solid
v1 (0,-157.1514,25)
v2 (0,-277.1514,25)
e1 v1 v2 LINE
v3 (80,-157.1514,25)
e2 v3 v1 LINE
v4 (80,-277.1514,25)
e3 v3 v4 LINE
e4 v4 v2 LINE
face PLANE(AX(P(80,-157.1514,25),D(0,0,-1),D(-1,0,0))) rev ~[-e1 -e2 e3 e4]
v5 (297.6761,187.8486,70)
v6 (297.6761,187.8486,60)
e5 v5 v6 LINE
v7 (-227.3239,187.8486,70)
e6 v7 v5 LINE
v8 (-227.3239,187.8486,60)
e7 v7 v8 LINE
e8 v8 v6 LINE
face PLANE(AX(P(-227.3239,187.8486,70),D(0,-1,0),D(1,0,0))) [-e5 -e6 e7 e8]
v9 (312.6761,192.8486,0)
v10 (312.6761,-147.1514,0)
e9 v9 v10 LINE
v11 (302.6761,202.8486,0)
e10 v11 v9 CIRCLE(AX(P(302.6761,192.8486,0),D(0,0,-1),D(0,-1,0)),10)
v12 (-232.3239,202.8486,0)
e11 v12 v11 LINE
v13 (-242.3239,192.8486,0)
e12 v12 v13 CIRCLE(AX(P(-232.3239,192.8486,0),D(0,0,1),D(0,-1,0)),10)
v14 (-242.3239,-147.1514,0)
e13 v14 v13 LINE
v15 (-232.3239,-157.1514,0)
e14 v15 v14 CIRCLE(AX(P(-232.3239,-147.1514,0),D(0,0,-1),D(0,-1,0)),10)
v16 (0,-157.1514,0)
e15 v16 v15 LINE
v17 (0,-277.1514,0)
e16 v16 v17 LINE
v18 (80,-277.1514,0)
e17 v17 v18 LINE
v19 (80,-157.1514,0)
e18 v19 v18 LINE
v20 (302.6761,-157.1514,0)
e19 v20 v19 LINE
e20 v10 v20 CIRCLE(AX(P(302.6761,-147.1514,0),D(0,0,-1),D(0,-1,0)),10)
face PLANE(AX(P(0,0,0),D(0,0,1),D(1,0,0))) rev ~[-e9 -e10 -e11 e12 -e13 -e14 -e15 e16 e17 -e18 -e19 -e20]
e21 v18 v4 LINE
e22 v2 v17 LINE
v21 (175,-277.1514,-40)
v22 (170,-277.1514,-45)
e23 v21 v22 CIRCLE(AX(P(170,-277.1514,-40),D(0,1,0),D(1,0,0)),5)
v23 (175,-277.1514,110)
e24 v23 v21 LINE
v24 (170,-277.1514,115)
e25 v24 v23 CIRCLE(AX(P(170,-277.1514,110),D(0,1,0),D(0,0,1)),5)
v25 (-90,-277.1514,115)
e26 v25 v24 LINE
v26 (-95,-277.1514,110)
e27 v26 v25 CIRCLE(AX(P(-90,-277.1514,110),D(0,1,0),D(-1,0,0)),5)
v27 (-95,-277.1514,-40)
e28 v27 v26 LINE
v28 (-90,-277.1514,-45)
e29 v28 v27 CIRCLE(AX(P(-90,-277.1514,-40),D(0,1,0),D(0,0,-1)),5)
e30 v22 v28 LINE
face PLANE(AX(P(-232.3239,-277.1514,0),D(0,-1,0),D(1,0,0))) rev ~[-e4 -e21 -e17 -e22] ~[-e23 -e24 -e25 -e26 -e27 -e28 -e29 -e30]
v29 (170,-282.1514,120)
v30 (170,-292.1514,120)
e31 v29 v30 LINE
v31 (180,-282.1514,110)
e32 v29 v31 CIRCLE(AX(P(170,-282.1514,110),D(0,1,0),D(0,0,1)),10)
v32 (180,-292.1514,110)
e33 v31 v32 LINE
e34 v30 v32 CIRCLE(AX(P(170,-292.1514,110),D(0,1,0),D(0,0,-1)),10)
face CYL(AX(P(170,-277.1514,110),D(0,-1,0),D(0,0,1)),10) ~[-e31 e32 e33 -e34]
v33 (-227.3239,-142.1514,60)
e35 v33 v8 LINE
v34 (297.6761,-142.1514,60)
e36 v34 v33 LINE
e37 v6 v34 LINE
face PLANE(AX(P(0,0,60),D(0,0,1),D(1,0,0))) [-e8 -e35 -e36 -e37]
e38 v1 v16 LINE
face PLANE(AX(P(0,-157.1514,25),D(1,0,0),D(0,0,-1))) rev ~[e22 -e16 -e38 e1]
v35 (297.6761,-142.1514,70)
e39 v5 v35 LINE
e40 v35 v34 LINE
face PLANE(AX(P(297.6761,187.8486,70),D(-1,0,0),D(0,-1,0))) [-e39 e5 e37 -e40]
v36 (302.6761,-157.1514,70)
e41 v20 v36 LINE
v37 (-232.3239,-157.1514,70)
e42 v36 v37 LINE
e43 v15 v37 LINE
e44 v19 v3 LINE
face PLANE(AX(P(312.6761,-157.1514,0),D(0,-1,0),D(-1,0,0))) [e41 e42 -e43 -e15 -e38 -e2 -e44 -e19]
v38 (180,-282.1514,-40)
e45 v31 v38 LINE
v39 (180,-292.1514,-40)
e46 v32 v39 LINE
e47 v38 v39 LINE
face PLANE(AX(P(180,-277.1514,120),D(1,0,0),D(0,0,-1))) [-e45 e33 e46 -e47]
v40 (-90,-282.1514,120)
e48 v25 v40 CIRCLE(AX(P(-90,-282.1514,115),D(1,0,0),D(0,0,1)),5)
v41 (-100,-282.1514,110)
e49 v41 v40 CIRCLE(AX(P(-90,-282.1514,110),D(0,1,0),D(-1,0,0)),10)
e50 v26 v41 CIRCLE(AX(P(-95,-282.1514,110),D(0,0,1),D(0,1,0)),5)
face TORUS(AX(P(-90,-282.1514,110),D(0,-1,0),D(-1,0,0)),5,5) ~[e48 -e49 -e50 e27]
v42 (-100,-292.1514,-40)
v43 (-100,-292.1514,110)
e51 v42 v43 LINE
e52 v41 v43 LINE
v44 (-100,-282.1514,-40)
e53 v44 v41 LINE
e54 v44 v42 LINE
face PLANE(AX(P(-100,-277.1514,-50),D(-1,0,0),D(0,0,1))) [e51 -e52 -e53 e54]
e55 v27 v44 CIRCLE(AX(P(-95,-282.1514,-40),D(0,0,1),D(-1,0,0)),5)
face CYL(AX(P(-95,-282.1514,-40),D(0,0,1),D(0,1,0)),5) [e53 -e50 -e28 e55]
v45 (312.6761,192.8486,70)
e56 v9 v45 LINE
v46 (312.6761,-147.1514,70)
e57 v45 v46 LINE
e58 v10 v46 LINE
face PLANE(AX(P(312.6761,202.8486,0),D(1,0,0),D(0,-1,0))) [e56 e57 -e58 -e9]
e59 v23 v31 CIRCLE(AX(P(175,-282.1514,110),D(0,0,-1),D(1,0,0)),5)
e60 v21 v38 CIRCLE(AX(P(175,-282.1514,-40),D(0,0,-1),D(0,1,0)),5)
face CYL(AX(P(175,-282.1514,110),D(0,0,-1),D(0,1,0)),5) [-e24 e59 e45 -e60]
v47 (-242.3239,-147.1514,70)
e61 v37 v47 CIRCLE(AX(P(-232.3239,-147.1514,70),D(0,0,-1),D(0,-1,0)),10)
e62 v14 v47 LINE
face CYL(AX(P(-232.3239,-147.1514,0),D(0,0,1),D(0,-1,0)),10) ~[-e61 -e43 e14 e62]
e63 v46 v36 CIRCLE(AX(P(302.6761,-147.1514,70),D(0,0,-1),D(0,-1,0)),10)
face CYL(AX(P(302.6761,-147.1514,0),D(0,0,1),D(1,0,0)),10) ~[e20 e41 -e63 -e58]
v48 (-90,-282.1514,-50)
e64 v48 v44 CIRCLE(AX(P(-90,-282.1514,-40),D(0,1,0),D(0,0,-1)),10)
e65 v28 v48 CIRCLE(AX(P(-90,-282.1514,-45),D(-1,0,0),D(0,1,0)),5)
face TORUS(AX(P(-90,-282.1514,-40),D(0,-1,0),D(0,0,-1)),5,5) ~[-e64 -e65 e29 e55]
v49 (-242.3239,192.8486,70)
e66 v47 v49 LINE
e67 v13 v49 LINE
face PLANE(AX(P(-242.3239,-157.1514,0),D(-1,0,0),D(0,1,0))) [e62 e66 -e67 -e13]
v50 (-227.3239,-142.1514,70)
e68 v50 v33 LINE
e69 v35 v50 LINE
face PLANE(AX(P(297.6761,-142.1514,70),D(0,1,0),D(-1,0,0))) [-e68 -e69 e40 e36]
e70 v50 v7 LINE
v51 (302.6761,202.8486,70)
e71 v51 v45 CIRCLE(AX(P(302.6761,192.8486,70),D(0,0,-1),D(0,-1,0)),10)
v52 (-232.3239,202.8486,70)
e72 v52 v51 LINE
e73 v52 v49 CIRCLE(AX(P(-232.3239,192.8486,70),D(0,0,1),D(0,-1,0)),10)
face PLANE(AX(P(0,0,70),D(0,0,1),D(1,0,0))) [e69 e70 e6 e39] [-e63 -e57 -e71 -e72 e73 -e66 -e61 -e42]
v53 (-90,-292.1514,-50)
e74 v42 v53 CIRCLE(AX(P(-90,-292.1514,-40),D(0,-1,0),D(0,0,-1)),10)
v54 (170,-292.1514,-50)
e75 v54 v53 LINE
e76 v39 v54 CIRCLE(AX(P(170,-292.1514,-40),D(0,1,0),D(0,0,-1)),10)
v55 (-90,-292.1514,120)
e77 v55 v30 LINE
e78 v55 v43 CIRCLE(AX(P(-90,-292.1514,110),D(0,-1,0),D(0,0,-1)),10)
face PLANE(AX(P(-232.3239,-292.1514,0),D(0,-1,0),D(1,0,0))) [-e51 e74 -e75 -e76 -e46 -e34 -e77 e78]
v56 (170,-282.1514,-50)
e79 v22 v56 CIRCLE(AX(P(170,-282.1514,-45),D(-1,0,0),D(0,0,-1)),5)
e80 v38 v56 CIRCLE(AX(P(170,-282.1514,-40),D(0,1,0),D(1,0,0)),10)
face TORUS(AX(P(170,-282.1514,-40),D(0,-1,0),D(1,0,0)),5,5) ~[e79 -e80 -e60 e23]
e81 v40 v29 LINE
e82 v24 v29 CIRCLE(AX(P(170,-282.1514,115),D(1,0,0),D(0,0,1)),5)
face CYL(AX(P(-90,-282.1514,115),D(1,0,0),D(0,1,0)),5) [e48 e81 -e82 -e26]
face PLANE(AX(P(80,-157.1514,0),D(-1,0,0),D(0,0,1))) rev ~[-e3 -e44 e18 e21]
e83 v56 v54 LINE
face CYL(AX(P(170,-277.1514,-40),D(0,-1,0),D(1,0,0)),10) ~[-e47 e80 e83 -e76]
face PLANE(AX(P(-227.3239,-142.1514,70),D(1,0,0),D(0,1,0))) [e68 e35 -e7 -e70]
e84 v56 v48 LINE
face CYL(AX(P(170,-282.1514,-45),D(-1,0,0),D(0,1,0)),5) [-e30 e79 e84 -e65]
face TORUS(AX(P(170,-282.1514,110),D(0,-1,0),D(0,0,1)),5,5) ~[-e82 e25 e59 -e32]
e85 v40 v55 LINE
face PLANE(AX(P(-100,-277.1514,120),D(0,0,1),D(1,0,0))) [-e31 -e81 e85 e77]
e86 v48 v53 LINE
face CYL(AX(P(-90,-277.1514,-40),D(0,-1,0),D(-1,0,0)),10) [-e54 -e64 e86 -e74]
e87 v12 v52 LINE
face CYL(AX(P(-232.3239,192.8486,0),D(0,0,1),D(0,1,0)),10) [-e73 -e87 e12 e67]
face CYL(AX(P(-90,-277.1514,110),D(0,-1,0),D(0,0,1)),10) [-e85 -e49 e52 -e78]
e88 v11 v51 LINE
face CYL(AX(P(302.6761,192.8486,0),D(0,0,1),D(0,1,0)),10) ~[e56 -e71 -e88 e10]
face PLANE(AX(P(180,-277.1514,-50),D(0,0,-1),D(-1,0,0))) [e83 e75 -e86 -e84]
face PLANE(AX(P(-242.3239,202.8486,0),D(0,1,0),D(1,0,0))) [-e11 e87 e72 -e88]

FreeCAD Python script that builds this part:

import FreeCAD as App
import Part
import Sketcher
from FreeCAD import Vector


def edges_at(feature, points):
    """Names of the edges that pass closest to the given points."""
    edges = feature.Shape.Edges
    near = lambda p: min(range(len(edges)), key=lambda i: edges[i].distToShape(Part.Vertex(*p))[0])
    return sorted({f"Edge{near(p) + 1}" for p in points})

doc = App.newDocument("Part")
body = doc.addObject("PartDesign::Body", "Body")

sketch1 = body.newObject("Sketcher::SketchObject", "Sketch")
sketch1.AttachmentSupport = (doc.getObject("XY_Plane"), [""])
sketch1.MapMode = "FlatFace"
sketch1.addGeometry([
    Part.LineSegment(Vector(313, 203, 0), Vector(-242, 203, 0)),
    Part.LineSegment(Vector(-242, 203, 0), Vector(-242, -157, 0)),
    Part.LineSegment(Vector(-242, -157, 0), Vector(313, -157, 0)),
    Part.LineSegment(Vector(313, -157, 0), Vector(313, 203, 0)),
], False)
sketch1.addConstraint([
    Sketcher.Constraint("Coincident", 0, 2, 1, 1),
    Sketcher.Constraint("Coincident", 1, 2, 2, 1),
    Sketcher.Constraint("Coincident", 2, 2, 3, 1),
    Sketcher.Constraint("Coincident", 3, 2, 0, 1),
    Sketcher.Constraint("Horizontal", 0),
    Sketcher.Constraint("Vertical", 1),
    Sketcher.Constraint("Horizontal", 2),
    Sketcher.Constraint("Vertical", 3),
    Sketcher.Constraint("DistanceX", 0, 2, 0, 1, 555.0),
    Sketcher.Constraint("DistanceY", 1, 2, 1, 1, 360.0),
    Sketcher.Constraint("DistanceX", 0, 2, -1, 1, 242.324),
    Sketcher.Constraint("DistanceY", -1, 1, 0, 2, 202.8486),
])
pad1 = body.newObject("PartDesign::Pad", "Pad")
pad1.Profile = sketch1
pad1.Length = 70
doc.recompute()

fillet = body.newObject("PartDesign::Fillet", "Fillet")
fillet.Base = (pad1, edges_at(pad1, [
    (-242.324, 202.849, 35),
    (-242.324, -157.151, 35),
    (312.676, -157.151, 35),
    (312.676, 202.849, 35),
]))
fillet.Radius = 10

sketch2 = body.newObject("Sketcher::SketchObject", "Sketch001")
sketch2.AttachmentSupport = (doc.getObject("XY_Plane"), [""])
sketch2.MapMode = "FlatFace"
sketch2.AttachmentOffset = App.Placement(Vector(0, 0, 70), App.Rotation())
sketch2.addGeometry([
    Part.LineSegment(Vector(298, 188, 0), Vector(-227, 188, 0)),
    Part.LineSegment(Vector(-227, 188, 0), Vector(-227, -142, 0)),
    Part.LineSegment(Vector(-227, -142, 0), Vector(298, -142, 0)),
    Part.LineSegment(Vector(298, -142, 0), Vector(298, 188, 0)),
], False)
sketch2.addConstraint([
    Sketcher.Constraint("Coincident", 0, 2, 1, 1),
    Sketcher.Constraint("Coincident", 1, 2, 2, 1),
    Sketcher.Constraint("Coincident", 2, 2, 3, 1),
    Sketcher.Constraint("Coincident", 3, 2, 0, 1),
    Sketcher.Constraint("Horizontal", 0),
    Sketcher.Constraint("Vertical", 1),
    Sketcher.Constraint("Horizontal", 2),
    Sketcher.Constraint("Vertical", 3),
    Sketcher.Constraint("DistanceX", 0, 2, 0, 1, 525.0),
    Sketcher.Constraint("DistanceY", 1, 2, 1, 1, 330.0),
    Sketcher.Constraint("DistanceX", 0, 2, -1, 1, 227.324),
    Sketcher.Constraint("DistanceY", -1, 1, 0, 2, 187.8486),
])
pocket1 = body.newObject("PartDesign::Pocket", "Pocket")
pocket1.Profile = sketch2
pocket1.Length = 10

sketch3 = body.newObject("Sketcher::SketchObject", "Sketch002")
sketch3.AttachmentSupport = (doc.getObject("XZ_Plane"), [""])
sketch3.MapMode = "FlatFace"
sketch3.AttachmentOffset = App.Placement(Vector(0, 0, 157.1514), App.Rotation())
sketch3.addGeometry([
    Part.LineSegment(Vector(0, 25, 0), Vector(0, 0, 0)),
    Part.LineSegment(Vector(0, 0, 0), Vector(80, 0, 0)),
    Part.LineSegment(Vector(80, 0, 0), Vector(80, 25, 0)),
    Part.LineSegment(Vector(80, 25, 0), Vector(0, 25, 0)),
], False)
sketch3.addConstraint([
    Sketcher.Constraint("Coincident", 0, 2, 1, 1),
    Sketcher.Constraint("Coincident", 1, 2, 2, 1),
    Sketcher.Constraint("Coincident", 2, 2, 3, 1),
    Sketcher.Constraint("Coincident", 3, 2, 0, 1),
    Sketcher.Constraint("Vertical", 0),
    Sketcher.Constraint("Horizontal", 1),
    Sketcher.Constraint("Vertical", 2),
    Sketcher.Constraint("Horizontal", 3),
    Sketcher.Constraint("Coincident", 0, 2, -1, 1),
    Sketcher.Constraint("DistanceX", 1, 1, 1, 2, 80.0),
    Sketcher.Constraint("DistanceY", 0, 2, 0, 1, 25.0),
])
pad2 = body.newObject("PartDesign::Pad", "Pad001")
pad2.Profile = sketch3
pad2.Length = 120

sketch4 = body.newObject("Sketcher::SketchObject", "Sketch003")
sketch4.AttachmentSupport = (doc.getObject("XZ_Plane"), [""])
sketch4.MapMode = "FlatFace"
sketch4.AttachmentOffset = App.Placement(Vector(0, 0, 277.1514), App.Rotation())
sketch4.addGeometry([
    Part.LineSegment(Vector(180, 120, 0), Vector(-100, 120, 0)),
    Part.LineSegment(Vector(-100, 120, 0), Vector(-100, -50, 0)),
    Part.LineSegment(Vector(-100, -50, 0), Vector(180, -50, 0)),
    Part.LineSegment(Vector(180, -50, 0), Vector(180, 120, 0)),
], False)
sketch4.addConstraint([
    Sketcher.Constraint("Coincident", 0, 2, 1, 1),
    Sketcher.Constraint("Coincident", 1, 2, 2, 1),
    Sketcher.Constraint("Coincident", 2, 2, 3, 1),
    Sketcher.Constraint("Coincident", 3, 2, 0, 1),
    Sketcher.Constraint("Horizontal", 0),
    Sketcher.Constraint("Vertical", 1),
    Sketcher.Constraint("Horizontal", 2),
    Sketcher.Constraint("Vertical", 3),
    Sketcher.Constraint("DistanceX", 0, 2, 0, 1, 280.0),
    Sketcher.Constraint("DistanceY", 1, 2, 1, 1, 170.0),
    Sketcher.Constraint("DistanceX", 0, 2, -1, 1, 100.0),
    Sketcher.Constraint("DistanceY", 1, 2, -1, 1, 50.0),
])
pad3 = body.newObject("PartDesign::Pad", "Pad002")
pad3.Profile = sketch4
pad3.Length = 15
doc.recompute()

fillet2 = body.newObject("PartDesign::Fillet", "Fillet001")
fillet2.Base = (pad3, edges_at(pad3, [
    (180, -284.651, 120),
    (-100, -284.651, 120),
    (180, -284.651, -50),
    (-100, -284.651, -50),
]))
fillet2.Radius = 10
doc.recompute()

fillet3 = body.newObject("PartDesign::Fillet", "Fillet002")
fillet3.Base = (fillet2, edges_at(fillet2, [
    (177.071, -277.151, 117.071),
    (180, -277.151, 35),
    (177.071, -277.151, -47.071),
    (40, -277.151, -50),
    (-97.071, -277.151, -47.071),
    (-100, -277.151, 35),
    (-97.071, -277.151, 117.071),
    (40, -277.151, 120),
]))
fillet3.Radius = 5

doc.recompute()
